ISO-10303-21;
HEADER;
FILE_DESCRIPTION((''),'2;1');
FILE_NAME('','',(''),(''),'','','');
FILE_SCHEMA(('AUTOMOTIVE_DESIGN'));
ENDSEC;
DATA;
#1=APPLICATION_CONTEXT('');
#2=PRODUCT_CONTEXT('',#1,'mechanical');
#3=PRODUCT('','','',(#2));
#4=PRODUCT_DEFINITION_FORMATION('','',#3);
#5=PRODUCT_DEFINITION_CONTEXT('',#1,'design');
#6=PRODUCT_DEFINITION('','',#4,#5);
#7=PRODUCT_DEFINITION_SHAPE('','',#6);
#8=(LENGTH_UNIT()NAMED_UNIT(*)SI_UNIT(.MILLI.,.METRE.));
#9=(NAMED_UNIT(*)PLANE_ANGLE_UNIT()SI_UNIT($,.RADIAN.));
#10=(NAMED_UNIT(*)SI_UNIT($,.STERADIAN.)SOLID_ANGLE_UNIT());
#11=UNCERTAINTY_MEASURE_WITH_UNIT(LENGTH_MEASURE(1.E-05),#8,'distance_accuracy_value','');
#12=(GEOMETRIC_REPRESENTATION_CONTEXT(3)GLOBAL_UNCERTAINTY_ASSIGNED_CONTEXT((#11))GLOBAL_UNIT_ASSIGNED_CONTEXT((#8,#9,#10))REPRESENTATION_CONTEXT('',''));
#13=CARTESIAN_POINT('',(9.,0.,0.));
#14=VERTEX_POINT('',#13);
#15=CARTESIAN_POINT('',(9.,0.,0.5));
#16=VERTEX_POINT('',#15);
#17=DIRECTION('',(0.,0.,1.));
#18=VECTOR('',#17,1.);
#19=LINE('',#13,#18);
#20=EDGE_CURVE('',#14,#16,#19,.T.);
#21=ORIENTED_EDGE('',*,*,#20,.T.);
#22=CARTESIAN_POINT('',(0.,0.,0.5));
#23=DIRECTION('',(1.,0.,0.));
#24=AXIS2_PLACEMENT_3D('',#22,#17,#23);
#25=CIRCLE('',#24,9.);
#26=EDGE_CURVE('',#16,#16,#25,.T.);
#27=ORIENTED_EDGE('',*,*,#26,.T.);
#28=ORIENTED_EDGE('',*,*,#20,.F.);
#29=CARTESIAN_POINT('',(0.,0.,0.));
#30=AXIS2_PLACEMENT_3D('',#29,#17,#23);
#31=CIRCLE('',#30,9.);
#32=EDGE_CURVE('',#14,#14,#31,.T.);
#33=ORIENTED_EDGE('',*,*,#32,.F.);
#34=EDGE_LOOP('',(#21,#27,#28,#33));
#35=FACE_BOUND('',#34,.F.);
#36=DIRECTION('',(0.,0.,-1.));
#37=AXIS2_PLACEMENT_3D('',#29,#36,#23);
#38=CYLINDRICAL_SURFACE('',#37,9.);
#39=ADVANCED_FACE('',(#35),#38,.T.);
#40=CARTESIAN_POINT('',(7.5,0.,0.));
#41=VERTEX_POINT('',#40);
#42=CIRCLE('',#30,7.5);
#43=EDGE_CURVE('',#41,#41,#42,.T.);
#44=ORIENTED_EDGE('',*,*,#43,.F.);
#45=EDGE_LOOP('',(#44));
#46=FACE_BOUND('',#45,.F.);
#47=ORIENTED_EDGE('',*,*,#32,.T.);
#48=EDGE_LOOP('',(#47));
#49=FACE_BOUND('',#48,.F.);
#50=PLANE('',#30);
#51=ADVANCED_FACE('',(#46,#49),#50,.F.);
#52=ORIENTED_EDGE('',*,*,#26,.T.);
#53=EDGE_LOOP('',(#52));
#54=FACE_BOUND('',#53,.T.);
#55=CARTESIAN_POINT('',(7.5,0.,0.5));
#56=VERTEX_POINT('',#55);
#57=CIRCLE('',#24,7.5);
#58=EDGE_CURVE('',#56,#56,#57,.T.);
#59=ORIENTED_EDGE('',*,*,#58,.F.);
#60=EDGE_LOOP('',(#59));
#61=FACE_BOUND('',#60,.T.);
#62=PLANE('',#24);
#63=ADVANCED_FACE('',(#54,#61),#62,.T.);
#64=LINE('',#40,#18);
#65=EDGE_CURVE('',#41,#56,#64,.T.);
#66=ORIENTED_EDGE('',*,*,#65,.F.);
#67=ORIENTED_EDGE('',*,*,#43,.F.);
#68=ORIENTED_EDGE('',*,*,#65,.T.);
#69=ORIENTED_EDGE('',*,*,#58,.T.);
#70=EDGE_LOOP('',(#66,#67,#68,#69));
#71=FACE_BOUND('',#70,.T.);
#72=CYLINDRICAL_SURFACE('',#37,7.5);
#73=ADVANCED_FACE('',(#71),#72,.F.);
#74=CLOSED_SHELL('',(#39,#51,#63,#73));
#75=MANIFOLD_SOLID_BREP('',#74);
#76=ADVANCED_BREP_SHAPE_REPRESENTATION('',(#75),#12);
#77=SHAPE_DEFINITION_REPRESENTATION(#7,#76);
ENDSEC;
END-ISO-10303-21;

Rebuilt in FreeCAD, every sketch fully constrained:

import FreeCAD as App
import Part
import Sketcher

doc = App.newDocument("Part")
body = doc.addObject("PartDesign::Body", "Body")

sketch1 = body.newObject("Sketcher::SketchObject", "Sketch")
sketch1.AttachmentSupport = (doc.getObject("XY_Plane"), [""])
sketch1.MapMode = "FlatFace"
sketch1.addGeometry([
    Part.Circle(App.Vector(0, 0, 0), App.Vector(0, 0, 1), 9),
    Part.Circle(App.Vector(0, 0, 0), App.Vector(0, 0, 1), 8),
], False)
sketch1.addConstraint([
    Sketcher.Constraint("Coincident", 0, 3, -1, 1),
    Sketcher.Constraint("Coincident", 1, 3, -1, 1),
    Sketcher.Constraint("Diameter", 0, 18.0),
    Sketcher.Constraint("Diameter", 1, 15.0),
])
pad1 = body.newObject("PartDesign::Pad", "Pad")
pad1.Profile = sketch1
pad1.Length = 0.5

doc.recompute()
